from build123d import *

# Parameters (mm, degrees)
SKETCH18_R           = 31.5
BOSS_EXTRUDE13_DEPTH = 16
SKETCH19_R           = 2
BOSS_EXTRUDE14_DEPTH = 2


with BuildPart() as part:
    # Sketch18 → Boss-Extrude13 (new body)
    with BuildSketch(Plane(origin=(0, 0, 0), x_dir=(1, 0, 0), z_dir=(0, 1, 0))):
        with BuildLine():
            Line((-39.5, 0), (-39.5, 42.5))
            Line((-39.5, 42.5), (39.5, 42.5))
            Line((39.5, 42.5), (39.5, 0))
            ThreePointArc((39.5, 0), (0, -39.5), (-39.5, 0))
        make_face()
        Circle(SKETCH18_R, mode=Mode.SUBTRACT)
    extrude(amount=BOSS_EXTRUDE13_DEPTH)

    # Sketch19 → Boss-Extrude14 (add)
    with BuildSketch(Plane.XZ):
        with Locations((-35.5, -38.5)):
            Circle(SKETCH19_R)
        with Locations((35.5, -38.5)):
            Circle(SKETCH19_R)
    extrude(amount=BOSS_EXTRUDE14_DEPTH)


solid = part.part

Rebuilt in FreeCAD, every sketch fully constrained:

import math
import FreeCAD as App
import Part
import Sketcher
from FreeCAD import Vector
Q = App.Units.Quantity

doc = App.newDocument("Part")
body = doc.addObject("PartDesign::Body", "Body")

# Sketch on XZ plane
sketch1 = doc.addObject("Sketcher::SketchObject", "Sketch")
body.addObject(sketch1)
sketch1.AttachmentSupport = (doc.XZ_Plane, [""])
sketch1.MapMode = "FlatFace"
sketch1.addGeometry([
    Part.LineSegment(Vector(-39.5, -42.5, 0), Vector(-39.5, 0, 0)),  # 0
    Part.ArcOfCircle(Part.Circle(Vector(0, 0, 0), Vector(0, 0, 1), 39.5), math.radians(0), math.radians(180)),  # 1
    Part.LineSegment(Vector(39.5, 0, 0), Vector(39.5, -42.5, 0)),  # 2
    Part.LineSegment(Vector(39.5, -42.5, 0), Vector(-39.5, -42.5, 0)),  # 3
    Part.Circle(Vector(0, 0, 0), Vector(0, 0, 1), 31.5),  # 4
], False)
sketch1.addConstraint([
    Sketcher.Constraint("Tangent", 0, 2, 1, 2),
    Sketcher.Constraint("Tangent", 1, 1, 2, 1),
    Sketcher.Constraint("Coincident", 2, 2, 3, 1),
    Sketcher.Constraint("Coincident", 3, 2, 0, 1),
    Sketcher.Constraint("Vertical", 0),
    Sketcher.Constraint("Vertical", 2),
    Sketcher.Constraint("Horizontal", 3),
    Sketcher.Constraint("Coincident", 1, 3, -1, 1),
    Sketcher.Constraint("Coincident", 4, 3, -1, 1),
    Sketcher.Constraint("Diameter", 4, Q("63 mm")),
    Sketcher.Constraint("Radius", 1, Q("39.5 mm")),
    Sketcher.Constraint("DistanceY", 0, 1, 0, 2, Q("42.5 mm")),
])
pad1 = doc.addObject("PartDesign::Pad", "Pad")
body.addObject(pad1)
pad1.Profile = sketch1
pad1.Length = 16
pad1.Reversed = True

# Sketch on XZ plane
sketch2 = doc.addObject("Sketcher::SketchObject", "Sketch001")
body.addObject(sketch2)
sketch2.AttachmentSupport = (doc.XZ_Plane, [""])
sketch2.MapMode = "FlatFace"
sketch2.addGeometry([
    Part.Circle(Vector(-35.5, -38.5, 0), Vector(0, 0, 1), 2),
    Part.Circle(Vector(35.5, -38.5, 0), Vector(0, 0, 1), 2),
], False)
sketch2.addConstraint([
    Sketcher.Constraint("Equal", 0, 1),
    Sketcher.Constraint("Symmetric", 0, 3, 1, 3, -2),
    Sketcher.Constraint("Diameter", 0, Q("4 mm")),
    Sketcher.Constraint("DistanceX", 0, 3, 1, 3, Q("71 mm")),
    Sketcher.Constraint("DistanceY", 0, 3, -1, 1, Q("38.5 mm")),
])
pad2 = doc.addObject("PartDesign::Pad", "Pad001")
body.addObject(pad2)
pad2.Profile = sketch2
pad2.Length = 2

doc.recompute()
